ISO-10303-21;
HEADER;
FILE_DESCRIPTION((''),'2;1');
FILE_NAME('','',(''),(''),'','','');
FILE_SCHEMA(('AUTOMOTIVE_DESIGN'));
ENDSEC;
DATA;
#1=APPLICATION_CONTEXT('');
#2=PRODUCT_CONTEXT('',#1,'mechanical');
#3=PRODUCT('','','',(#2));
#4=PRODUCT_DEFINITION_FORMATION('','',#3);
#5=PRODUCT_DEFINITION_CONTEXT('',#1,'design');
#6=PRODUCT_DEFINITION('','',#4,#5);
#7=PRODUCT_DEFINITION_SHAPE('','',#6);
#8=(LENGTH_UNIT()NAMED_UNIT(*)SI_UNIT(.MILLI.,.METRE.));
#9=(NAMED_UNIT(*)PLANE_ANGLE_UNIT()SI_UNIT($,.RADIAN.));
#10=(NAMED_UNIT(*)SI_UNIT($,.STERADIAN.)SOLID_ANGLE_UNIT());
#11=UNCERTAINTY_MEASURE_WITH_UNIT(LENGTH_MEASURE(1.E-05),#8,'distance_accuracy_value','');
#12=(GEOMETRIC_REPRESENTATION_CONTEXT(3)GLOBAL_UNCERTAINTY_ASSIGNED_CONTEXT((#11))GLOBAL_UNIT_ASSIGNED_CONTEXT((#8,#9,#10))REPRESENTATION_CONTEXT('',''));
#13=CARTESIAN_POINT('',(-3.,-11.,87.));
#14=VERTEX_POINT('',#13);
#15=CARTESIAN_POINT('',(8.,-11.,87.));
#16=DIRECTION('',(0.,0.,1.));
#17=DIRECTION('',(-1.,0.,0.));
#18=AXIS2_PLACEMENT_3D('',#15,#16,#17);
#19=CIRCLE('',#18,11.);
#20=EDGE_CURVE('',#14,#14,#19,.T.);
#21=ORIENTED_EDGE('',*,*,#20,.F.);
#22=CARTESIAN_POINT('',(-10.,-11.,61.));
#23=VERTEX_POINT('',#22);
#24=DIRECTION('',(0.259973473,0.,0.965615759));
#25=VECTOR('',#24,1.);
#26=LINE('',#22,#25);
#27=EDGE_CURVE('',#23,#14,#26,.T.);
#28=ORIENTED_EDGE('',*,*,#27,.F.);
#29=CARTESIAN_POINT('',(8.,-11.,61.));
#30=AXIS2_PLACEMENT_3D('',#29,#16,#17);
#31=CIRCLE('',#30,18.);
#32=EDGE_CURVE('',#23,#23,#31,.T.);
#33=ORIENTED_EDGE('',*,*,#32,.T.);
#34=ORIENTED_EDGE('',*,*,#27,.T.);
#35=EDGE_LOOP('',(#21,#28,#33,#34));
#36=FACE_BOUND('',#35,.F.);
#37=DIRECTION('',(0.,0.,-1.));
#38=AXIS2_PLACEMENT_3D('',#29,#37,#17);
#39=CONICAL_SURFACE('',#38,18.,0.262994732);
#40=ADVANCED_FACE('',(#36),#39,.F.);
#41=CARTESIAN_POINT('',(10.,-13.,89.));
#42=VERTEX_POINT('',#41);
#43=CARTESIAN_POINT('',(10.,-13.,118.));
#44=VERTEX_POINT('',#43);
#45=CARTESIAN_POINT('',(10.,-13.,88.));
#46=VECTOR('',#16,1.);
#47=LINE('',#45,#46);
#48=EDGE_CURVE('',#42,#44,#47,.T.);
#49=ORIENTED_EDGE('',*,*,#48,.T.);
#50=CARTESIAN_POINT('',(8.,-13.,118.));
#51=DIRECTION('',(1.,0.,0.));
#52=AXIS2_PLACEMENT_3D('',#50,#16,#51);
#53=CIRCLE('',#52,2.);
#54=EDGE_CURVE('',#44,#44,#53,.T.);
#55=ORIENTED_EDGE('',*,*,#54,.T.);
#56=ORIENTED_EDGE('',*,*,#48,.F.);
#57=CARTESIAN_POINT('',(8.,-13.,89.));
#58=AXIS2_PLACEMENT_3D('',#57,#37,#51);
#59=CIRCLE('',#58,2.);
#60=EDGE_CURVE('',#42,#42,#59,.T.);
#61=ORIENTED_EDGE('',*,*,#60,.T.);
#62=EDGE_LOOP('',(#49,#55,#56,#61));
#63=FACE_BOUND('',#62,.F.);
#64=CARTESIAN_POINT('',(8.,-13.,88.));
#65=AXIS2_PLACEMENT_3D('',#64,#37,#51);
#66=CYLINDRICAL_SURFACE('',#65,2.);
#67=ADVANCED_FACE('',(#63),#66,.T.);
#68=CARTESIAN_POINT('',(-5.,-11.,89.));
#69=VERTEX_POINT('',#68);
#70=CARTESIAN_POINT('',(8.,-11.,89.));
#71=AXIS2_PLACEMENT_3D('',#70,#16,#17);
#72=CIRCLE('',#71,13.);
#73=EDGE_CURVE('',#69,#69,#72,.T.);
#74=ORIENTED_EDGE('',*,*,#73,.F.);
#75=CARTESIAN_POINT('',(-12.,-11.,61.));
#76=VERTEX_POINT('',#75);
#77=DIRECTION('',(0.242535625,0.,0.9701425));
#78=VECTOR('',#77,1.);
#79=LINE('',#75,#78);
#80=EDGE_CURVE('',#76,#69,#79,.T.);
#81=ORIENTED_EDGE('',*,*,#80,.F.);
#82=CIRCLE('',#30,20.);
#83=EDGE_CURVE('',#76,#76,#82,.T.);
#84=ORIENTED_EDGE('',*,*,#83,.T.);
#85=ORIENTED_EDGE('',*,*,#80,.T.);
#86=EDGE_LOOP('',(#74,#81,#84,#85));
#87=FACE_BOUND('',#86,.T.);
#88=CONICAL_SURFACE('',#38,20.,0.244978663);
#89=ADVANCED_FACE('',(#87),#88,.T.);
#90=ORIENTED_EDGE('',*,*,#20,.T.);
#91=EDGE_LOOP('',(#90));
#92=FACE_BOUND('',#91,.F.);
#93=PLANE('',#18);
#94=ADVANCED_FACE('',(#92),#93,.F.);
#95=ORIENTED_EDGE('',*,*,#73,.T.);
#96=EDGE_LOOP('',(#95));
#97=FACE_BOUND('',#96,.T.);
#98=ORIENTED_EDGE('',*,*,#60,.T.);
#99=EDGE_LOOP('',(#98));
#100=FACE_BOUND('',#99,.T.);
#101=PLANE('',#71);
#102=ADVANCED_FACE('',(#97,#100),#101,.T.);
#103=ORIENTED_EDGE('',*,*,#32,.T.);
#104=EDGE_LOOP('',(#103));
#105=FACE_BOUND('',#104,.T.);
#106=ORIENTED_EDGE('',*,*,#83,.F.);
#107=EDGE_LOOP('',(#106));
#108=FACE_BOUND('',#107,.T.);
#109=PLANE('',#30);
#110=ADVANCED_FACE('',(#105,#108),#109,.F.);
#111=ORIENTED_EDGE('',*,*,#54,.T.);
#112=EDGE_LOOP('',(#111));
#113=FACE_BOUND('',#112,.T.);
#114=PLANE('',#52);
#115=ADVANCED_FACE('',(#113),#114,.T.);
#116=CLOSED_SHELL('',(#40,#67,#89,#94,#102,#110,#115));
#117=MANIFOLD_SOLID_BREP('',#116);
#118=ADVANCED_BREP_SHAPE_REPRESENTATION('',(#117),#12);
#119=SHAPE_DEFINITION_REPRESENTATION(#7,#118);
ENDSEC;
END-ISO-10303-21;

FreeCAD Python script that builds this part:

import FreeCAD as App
import Part
import Sketcher
from FreeCAD import Vector

doc = App.newDocument("Part")
body = doc.addObject("PartDesign::Body", "Body")

sketch1 = body.newObject("Sketcher::SketchObject", "Sketch")
sketch1.AttachmentSupport = (doc.getObject("XY_Plane"), [""])
sketch1.MapMode = "FlatFace"
sketch1.AttachmentOffset = App.Placement(Vector(0, 0, 88), App.Rotation())
sketch1.addGeometry(Part.Circle(Vector(8, -13, 0), Vector(0, 0, 1), 2), False)
sketch1.addConstraint([
    Sketcher.Constraint("Diameter", 0, 4.0),
    Sketcher.Constraint("DistanceX", -1, 1, 0, 3, 8.0),
    Sketcher.Constraint("DistanceY", 0, 3, -1, 1, 13.0),
])
pad1 = body.newObject("PartDesign::Pad", "Pad")
pad1.Profile = sketch1
pad1.Length = 30
body2 = doc.addObject("PartDesign::Body", "Body001")

sketch2 = body2.newObject("Sketcher::SketchObject", "Sketch001")
sketch2.AttachmentSupport = (doc.getObject("XZ_Plane001"), [""])
sketch2.MapMode = "FlatFace"
sketch2.AttachmentOffset = App.Placement(Vector(0, 0, 11), App.Rotation())
sketch2.addGeometry([
    Part.LineSegment(Vector(8, 73, 0), Vector(-10, 73, 0)),
    Part.LineSegment(Vector(-10, 73, 0), Vector(-3, 99, 0)),
    Part.LineSegment(Vector(-3, 99, 0), Vector(8, 99, 0)),
    Part.LineSegment(Vector(8, 99, 0), Vector(8, 73, 0)),
], False)
sketch2.addGeometry(Part.LineSegment(Vector(8, 73, 0), Vector(8, 99, 0)), True)
sketch2.addConstraint([
    Sketcher.Constraint("Coincident", 0, 2, 1, 1),
    Sketcher.Constraint("Coincident", 1, 2, 2, 1),
    Sketcher.Constraint("Coincident", 2, 2, 3, 1),
    Sketcher.Constraint("Coincident", 3, 2, 0, 1),
    Sketcher.Constraint("Horizontal", 0),
    Sketcher.Constraint("Horizontal", 2),
    Sketcher.Constraint("Vertical", 3),
    Sketcher.Constraint("Vertical", 4),
    Sketcher.Constraint("Coincident", 4, 1, 3, 2),
    Sketcher.Constraint("Horizontal", 1, 2, 4, 2),
    Sketcher.Constraint("DistanceX", 0, 2, 0, 1, 18.0),
    Sketcher.Constraint("DistanceX", 2, 1, 2, 2, 11.0),
    Sketcher.Constraint("DistanceY", 3, 2, 3, 1, 26.0),
    Sketcher.Constraint("DistanceX", 0, 2, -1, 1, 10.0),
    Sketcher.Constraint("DistanceY", -1, 1, 0, 2, 73.0),
])
revolution = body2.newObject("PartDesign::Revolution", "Revolution")
revolution.Profile = sketch2
revolution.ReferenceAxis = (sketch2, ["Axis0"])
revolution.Angle = 360
body3 = doc.addObject("PartDesign::Body", "Body002")

sketch3 = body3.newObject("Sketcher::SketchObject", "Sketch002")
sketch3.AttachmentSupport = (doc.getObject("XZ_Plane002"), [""])
sketch3.MapMode = "FlatFace"
sketch3.AttachmentOffset = App.Placement(Vector(0, 0, 11), App.Rotation())
sketch3.addGeometry([
    Part.LineSegment(Vector(8, 73, 0), Vector(-12, 73, 0)),
    Part.LineSegment(Vector(-12, 73, 0), Vector(-5, 101, 0)),
    Part.LineSegment(Vector(-5, 101, 0), Vector(8, 101, 0)),
    Part.LineSegment(Vector(8, 101, 0), Vector(8, 73, 0)),
], False)
sketch3.addGeometry(Part.LineSegment(Vector(8, 73, 0), Vector(8, 101, 0)), True)
sketch3.addConstraint([
    Sketcher.Constraint("Coincident", 0, 2, 1, 1),
    Sketcher.Constraint("Coincident", 1, 2, 2, 1),
    Sketcher.Constraint("Coincident", 2, 2, 3, 1),
    Sketcher.Constraint("Coincident", 3, 2, 0, 1),
    Sketcher.Constraint("Horizontal", 0),
    Sketcher.Constraint("Horizontal", 2),
    Sketcher.Constraint("Vertical", 3),
    Sketcher.Constraint("Vertical", 4),
    Sketcher.Constraint("Coincident", 4, 1, 3, 2),
    Sketcher.Constraint("Horizontal", 1, 2, 4, 2),
    Sketcher.Constraint("DistanceX", 0, 2, 0, 1, 20.0),
    Sketcher.Constraint("DistanceX", 2, 1, 2, 2, 13.0),
    Sketcher.Constraint("DistanceY", 3, 2, 3, 1, 28.0),
    Sketcher.Constraint("DistanceX", 0, 2, -1, 1, 12.0),
    Sketcher.Constraint("DistanceY", -1, 1, 0, 2, 73.0),
])
revolution2 = body3.newObject("PartDesign::Revolution", "Revolution001")
revolution2.Profile = sketch3
revolution2.ReferenceAxis = (sketch3, ["Axis0"])
revolution2.Angle = 360
doc.recompute()

boolean = body3.newObject("PartDesign::Boolean", "Boolean")
boolean.Type = "Cut"
boolean.addObjects([body2])
body4 = doc.addObject("PartDesign::Body", "Body003")
doc.recompute()

body3.Placement = App.Placement(Vector(0, 0, -12), App.Rotation(Vector(0, 0, 1), 0))
boolean2 = body4.newObject("PartDesign::Boolean", "Boolean001")
boolean2.Type = "Fuse"
boolean2.addObjects([body3])
doc.recompute()

boolean3 = body4.newObject("PartDesign::Boolean", "Boolean002")
boolean3.Type = "Fuse"
boolean3.addObjects([body])

doc.recompute()
